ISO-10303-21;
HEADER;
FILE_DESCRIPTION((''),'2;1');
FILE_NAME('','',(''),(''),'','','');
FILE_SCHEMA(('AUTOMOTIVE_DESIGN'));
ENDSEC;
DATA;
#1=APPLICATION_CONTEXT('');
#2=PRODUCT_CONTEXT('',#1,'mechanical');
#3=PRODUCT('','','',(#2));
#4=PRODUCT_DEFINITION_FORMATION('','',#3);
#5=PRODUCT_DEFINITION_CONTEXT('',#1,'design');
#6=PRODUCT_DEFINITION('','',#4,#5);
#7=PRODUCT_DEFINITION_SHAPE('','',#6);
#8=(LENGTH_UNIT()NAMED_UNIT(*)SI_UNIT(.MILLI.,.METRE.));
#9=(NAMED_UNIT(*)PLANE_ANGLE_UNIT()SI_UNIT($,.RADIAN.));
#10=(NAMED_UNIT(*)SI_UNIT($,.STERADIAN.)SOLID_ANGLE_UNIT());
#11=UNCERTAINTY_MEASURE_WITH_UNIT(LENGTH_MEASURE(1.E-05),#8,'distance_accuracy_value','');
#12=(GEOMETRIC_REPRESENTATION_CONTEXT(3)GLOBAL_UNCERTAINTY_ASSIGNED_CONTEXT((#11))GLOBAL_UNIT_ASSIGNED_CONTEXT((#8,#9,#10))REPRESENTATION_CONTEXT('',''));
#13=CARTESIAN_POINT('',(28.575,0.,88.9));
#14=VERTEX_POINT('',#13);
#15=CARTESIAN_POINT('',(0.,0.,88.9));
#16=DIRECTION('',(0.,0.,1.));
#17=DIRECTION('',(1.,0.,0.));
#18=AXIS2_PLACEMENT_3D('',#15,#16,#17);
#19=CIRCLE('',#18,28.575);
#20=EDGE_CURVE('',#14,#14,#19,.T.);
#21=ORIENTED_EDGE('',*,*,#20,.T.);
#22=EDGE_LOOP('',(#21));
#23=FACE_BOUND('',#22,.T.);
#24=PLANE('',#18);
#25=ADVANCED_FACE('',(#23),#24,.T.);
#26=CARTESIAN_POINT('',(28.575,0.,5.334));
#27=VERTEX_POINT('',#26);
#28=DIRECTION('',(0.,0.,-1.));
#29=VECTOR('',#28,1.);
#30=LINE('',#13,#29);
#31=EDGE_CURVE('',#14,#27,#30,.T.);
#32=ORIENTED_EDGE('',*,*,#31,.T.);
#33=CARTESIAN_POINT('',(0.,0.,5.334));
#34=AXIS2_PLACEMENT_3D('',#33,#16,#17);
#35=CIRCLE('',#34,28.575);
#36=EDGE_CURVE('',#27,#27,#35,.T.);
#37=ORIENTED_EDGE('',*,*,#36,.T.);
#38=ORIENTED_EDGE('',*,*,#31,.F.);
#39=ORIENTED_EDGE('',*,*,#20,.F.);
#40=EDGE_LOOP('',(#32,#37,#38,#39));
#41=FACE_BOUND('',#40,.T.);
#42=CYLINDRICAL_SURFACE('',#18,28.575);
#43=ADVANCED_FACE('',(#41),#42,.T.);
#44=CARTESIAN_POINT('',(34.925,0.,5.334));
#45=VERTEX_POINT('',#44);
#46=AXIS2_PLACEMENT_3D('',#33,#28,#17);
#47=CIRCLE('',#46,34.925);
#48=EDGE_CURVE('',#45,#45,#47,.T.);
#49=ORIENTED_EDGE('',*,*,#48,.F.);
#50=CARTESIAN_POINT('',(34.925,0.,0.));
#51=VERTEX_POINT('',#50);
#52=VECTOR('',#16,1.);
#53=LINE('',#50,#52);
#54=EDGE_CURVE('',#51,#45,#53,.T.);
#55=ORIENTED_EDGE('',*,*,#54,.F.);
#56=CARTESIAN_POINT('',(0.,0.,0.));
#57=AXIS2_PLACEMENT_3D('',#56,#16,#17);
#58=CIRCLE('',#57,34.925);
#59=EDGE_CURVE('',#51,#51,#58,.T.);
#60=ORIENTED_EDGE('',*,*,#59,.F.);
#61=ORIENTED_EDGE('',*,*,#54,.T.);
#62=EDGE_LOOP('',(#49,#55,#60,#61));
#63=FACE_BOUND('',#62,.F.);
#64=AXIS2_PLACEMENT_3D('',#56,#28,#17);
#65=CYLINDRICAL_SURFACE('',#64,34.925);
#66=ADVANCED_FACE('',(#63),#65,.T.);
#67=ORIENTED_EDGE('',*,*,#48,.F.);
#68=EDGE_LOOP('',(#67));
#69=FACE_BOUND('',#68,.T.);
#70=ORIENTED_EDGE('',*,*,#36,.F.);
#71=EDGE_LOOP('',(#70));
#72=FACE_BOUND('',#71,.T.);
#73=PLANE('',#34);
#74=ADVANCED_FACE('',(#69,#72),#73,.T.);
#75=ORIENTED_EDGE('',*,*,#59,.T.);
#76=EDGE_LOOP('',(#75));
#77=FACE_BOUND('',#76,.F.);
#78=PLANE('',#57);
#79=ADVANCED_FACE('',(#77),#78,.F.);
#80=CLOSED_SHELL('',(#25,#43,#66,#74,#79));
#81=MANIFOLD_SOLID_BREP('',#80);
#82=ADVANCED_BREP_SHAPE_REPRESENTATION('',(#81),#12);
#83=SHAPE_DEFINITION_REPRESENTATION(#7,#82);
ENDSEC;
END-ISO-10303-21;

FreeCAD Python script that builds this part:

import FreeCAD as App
import Part
import Sketcher

V = App.Vector
Q = App.Units.Quantity

doc = App.newDocument("Part")
body = doc.addObject("PartDesign::Body", "Body")

# Sketch on XY plane
sketch1 = body.newObject("Sketcher::SketchObject", "Sketch")
sketch1.AttachmentSupport = (doc.getObject("XY_Plane"), [""])
sketch1.MapMode = "FlatFace"
sketch1.addGeometry(Part.Circle(V(0, 0, 0), V(0, 0, 1), 35), False)
sketch1.addConstraint([
    Sketcher.Constraint("Coincident", 0, 3, -1, 1),
    Sketcher.Constraint("Diameter", 0, Q("2.75 in")),
])
pad1 = body.newObject("PartDesign::Pad", "Pad")
pad1.Profile = sketch1
pad1.Length = Q("3.5 in")

# Sketch on XY plane
sketch2 = body.newObject("Sketcher::SketchObject", "Sketch001")
sketch2.AttachmentSupport = (doc.getObject("XY_Plane"), [""])
sketch2.MapMode = "FlatFace"
sketch2.AttachmentOffset = App.Placement(V(0, 0, 3.5 * 25.4), App.Rotation())
sketch2.addGeometry([
    Part.Circle(V(0, 0, 0), V(0, 0, 1), 82),
    Part.Circle(V(0, 0, 0), V(0, 0, 1), 29),
], False)
sketch2.addConstraint([
    Sketcher.Constraint("Coincident", 0, 3, -1, 1),
    Sketcher.Constraint("Coincident", 1, 3, -1, 1),
    Sketcher.Constraint("Diameter", 1, Q("2.25 in")),
    Sketcher.Constraint("Diameter", 0, 164.337992),
])
pocket1 = body.newObject("PartDesign::Pocket", "Pocket")
pocket1.Profile = sketch2
pocket1.Length = Q("3.29 in")

doc.recompute()
